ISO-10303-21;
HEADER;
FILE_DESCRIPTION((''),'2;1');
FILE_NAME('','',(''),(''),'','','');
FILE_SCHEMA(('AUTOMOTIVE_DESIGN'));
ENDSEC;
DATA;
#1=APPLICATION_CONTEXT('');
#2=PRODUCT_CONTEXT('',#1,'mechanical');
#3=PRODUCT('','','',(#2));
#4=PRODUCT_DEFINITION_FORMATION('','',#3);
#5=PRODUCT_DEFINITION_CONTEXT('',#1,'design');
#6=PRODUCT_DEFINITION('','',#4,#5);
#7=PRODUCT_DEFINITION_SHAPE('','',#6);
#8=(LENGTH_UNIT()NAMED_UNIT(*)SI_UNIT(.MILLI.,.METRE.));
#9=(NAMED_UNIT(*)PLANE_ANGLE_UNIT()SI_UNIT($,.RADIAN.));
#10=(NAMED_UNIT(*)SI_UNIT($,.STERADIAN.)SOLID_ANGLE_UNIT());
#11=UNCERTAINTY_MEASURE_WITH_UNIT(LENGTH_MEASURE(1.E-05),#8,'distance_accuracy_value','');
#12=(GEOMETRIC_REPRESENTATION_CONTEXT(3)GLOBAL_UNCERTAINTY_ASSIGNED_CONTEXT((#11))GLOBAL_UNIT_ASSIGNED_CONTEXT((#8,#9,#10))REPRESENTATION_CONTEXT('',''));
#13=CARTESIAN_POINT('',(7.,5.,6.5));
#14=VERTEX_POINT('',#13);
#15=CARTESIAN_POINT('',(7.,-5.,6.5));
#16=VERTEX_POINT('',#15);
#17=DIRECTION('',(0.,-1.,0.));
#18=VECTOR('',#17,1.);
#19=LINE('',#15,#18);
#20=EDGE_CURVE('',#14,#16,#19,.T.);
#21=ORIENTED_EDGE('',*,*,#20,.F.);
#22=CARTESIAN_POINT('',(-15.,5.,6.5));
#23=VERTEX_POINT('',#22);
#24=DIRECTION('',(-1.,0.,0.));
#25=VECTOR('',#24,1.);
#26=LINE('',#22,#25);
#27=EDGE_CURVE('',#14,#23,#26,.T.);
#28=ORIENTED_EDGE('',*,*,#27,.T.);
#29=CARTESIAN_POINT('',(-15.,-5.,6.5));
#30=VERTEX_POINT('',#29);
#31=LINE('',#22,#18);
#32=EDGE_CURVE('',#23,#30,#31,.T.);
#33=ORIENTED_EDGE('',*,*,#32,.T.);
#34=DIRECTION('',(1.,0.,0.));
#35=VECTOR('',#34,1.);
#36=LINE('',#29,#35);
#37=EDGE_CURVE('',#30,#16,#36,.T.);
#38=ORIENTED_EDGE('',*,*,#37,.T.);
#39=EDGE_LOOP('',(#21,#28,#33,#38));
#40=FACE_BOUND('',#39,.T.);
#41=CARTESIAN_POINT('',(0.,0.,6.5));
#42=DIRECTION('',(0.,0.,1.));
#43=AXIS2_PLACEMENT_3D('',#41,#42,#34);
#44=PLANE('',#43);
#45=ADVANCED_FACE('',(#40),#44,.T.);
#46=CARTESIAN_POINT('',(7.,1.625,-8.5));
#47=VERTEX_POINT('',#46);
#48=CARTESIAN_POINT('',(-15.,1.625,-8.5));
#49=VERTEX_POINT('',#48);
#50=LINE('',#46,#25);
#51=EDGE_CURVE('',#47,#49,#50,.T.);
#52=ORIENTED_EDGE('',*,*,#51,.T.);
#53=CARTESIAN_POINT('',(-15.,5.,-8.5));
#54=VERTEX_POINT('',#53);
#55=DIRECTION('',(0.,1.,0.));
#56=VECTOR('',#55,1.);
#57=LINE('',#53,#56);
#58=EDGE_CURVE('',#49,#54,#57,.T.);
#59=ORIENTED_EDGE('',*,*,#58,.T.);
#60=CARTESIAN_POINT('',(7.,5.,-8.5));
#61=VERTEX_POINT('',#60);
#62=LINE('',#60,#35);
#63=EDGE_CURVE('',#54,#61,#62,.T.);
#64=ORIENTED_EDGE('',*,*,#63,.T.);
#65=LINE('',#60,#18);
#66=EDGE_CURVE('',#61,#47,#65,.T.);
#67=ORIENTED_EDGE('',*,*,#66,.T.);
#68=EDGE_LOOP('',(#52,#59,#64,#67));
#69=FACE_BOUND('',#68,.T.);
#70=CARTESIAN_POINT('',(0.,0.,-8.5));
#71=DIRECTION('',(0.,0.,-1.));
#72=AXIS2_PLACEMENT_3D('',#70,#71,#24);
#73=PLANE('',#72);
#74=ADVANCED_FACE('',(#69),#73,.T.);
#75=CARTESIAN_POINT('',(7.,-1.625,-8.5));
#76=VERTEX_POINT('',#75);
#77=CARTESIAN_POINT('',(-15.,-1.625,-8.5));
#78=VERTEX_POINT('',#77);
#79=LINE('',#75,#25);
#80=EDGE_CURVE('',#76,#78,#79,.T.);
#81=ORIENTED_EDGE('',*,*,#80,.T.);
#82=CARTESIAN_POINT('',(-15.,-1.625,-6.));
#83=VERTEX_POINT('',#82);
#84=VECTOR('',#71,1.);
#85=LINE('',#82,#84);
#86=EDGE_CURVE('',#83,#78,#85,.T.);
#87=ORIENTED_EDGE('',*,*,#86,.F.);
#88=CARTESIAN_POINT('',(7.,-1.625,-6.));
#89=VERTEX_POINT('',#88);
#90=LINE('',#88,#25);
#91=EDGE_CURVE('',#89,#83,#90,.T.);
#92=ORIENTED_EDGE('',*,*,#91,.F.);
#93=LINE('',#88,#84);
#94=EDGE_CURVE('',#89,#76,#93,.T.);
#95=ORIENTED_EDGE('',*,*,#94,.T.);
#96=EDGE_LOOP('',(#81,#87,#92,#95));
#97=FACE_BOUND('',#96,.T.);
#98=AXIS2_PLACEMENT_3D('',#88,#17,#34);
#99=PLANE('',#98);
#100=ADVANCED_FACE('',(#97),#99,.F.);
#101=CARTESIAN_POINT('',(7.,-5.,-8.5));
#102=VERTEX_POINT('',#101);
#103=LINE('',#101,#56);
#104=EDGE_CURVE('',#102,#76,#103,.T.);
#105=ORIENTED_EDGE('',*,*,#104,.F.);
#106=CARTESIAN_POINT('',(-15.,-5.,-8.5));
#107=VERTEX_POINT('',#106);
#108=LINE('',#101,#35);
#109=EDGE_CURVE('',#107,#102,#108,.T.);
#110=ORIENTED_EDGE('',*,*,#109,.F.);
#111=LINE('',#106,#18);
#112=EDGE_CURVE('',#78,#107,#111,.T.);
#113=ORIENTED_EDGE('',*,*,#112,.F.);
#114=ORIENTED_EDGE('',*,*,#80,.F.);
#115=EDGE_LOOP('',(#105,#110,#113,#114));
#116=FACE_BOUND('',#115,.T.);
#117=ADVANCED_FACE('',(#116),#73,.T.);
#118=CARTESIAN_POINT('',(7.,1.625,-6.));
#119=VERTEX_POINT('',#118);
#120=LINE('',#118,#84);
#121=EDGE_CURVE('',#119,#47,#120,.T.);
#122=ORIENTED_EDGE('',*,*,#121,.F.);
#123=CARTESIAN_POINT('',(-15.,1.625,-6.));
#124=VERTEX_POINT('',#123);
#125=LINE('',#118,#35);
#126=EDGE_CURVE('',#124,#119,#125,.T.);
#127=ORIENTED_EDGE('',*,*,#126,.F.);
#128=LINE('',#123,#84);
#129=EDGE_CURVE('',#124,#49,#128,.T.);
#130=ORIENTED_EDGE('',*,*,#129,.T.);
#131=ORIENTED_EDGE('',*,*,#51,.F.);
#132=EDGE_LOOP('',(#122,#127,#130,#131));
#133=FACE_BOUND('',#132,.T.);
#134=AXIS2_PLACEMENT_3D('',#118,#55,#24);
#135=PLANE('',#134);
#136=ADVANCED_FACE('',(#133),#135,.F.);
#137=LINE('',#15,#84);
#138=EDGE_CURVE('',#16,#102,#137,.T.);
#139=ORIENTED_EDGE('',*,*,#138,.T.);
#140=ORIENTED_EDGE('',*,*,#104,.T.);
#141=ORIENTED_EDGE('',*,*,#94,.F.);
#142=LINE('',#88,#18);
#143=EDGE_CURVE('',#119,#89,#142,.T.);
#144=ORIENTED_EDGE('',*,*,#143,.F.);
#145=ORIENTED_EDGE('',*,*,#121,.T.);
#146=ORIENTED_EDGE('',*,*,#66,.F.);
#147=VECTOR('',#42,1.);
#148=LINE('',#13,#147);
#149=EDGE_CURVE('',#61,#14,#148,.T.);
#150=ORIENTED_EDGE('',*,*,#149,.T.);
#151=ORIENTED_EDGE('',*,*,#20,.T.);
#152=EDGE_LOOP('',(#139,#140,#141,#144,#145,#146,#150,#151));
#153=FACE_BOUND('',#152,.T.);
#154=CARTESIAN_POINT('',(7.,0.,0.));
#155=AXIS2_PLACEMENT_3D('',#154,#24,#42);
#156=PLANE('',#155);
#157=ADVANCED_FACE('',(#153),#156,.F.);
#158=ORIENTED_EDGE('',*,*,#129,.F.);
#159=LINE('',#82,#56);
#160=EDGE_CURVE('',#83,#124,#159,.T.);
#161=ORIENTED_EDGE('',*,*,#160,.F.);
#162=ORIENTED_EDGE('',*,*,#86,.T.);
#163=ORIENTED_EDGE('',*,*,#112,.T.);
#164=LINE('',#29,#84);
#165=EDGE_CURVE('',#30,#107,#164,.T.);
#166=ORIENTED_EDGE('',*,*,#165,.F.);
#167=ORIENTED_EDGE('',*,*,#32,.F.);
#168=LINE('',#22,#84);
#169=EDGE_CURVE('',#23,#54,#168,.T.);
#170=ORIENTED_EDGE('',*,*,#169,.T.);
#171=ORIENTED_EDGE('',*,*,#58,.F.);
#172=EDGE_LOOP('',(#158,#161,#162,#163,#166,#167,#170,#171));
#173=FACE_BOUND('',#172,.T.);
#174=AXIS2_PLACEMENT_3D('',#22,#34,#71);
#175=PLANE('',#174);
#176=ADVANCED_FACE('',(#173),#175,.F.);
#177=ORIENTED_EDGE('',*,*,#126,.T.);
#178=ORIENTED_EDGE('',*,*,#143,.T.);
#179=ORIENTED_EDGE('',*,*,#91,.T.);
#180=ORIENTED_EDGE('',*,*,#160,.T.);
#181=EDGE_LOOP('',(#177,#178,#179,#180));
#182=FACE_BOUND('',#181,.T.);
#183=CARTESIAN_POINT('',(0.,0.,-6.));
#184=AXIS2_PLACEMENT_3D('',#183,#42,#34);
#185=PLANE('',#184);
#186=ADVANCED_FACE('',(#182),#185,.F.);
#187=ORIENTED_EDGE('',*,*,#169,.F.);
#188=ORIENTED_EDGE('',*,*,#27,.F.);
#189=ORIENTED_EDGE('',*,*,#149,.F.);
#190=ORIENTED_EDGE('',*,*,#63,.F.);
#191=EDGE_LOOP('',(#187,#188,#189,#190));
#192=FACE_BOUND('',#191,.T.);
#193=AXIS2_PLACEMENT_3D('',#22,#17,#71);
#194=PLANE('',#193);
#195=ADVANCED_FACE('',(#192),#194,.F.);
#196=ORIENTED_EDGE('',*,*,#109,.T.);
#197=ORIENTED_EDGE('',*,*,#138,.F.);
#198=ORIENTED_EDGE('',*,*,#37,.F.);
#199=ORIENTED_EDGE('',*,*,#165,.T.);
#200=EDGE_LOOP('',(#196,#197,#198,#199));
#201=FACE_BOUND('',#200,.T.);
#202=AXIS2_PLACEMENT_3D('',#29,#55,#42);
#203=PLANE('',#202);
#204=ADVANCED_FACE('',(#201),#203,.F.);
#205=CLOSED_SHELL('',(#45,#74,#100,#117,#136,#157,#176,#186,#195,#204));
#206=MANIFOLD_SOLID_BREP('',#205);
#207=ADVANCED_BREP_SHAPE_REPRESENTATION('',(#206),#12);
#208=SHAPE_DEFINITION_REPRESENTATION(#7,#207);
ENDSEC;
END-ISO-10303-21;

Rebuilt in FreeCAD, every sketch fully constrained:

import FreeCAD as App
import Part
import Sketcher

V = App.Vector
Q = App.Units.Quantity


def add_polygon(sketch, points):
    """Adds a closed chain of lines whose ends are joined by coincident constraints."""
    first, n = sketch.GeometryCount, len(points)
    for a, b in zip(points, points[1:] + points[:1]):
        sketch.addGeometry(Part.LineSegment(App.Vector(*a, 0), App.Vector(*b, 0)), False)
    for i in range(n):
        sketch.addConstraint(Sketcher.Constraint("Coincident", first + i, 2, first + (i + 1) % n, 1))

doc = App.newDocument("Part")
body = doc.addObject("PartDesign::Body", "Body")

sketch1 = body.newObject("Sketcher::SketchObject", "Sketch")
sketch1.AttachmentSupport = (doc.getObject("XY_Plane"), [""])
sketch1.MapMode = "FlatFace"
add_polygon(sketch1, [(-15, 5), (-15, -5), (15, -5), (15, 5)])
sketch1.addConstraint(Sketcher.Constraint("Vertical", 0))
sketch1.addConstraint(Sketcher.Constraint("Horizontal", 1))
sketch1.addConstraint(Sketcher.Constraint("Vertical", 2))
sketch1.addConstraint(Sketcher.Constraint("Horizontal", 3))
sketch1.addConstraint(Sketcher.Constraint("Symmetric", 0, 2, 2, 2, -1, 1))
sketch1.addConstraint(Sketcher.Constraint("DistanceX", 1, 1, 1, 2, Q("30 mm")))
sketch1.addConstraint(Sketcher.Constraint("DistanceY", 0, 2, 0, 1, Q("10 mm")))
pad1 = body.newObject("PartDesign::Pad", "Pad")
pad1.Profile = sketch1
pad1.Length = 13
pad1.Midplane = True

sketch2 = body.newObject("Sketcher::SketchObject", "Sketch001")
sketch2.AttachmentSupport = (doc.getObject("XZ_Plane"), [""])
sketch2.MapMode = "FlatFace"
sketch2.AttachmentOffset = App.Placement(V(0, 0, 5), App.Rotation())
add_polygon(sketch2, [(4, 11), (4, -11), (17, -11), (17, 11)])
sketch2.addConstraint(Sketcher.Constraint("Vertical", 0))
sketch2.addConstraint(Sketcher.Constraint("Horizontal", 1))
sketch2.addConstraint(Sketcher.Constraint("Vertical", 2))
sketch2.addConstraint(Sketcher.Constraint("Horizontal", 3))
sketch2.addConstraint(Sketcher.Constraint("DistanceX", 1, 1, 1, 2, Q("13 mm")))
sketch2.addConstraint(Sketcher.Constraint("DistanceY", 0, 2, 0, 1, Q("22 mm")))
sketch2.addConstraint(Sketcher.Constraint("DistanceX", -1, 1, 0, 2, Q("4 mm")))
sketch2.addConstraint(Sketcher.Constraint("DistanceY", 0, 2, -1, 1, Q("11 mm")))
pocket1 = body.newObject("PartDesign::Pocket", "Pocket")
pocket1.Profile = sketch2
pocket1.Type = "ThroughAll"

sketch3 = body.newObject("Sketcher::SketchObject", "Sketch002")
sketch3.AttachmentSupport = (doc.getObject("YZ_Plane"), [""])
sketch3.MapMode = "FlatFace"
sketch3.AttachmentOffset = App.Placement(V(0, 0, 4), App.Rotation())
add_polygon(sketch3, [(5, 6), (-5, 6), (-5, -6), (5, -6)])
sketch3.addConstraint(Sketcher.Constraint("Horizontal", 0))
sketch3.addConstraint(Sketcher.Constraint("Vertical", 1))
sketch3.addConstraint(Sketcher.Constraint("Horizontal", 2))
sketch3.addConstraint(Sketcher.Constraint("Vertical", 3))
sketch3.addConstraint(Sketcher.Constraint("Symmetric", 0, 2, 2, 2, -1, 1))
sketch3.addConstraint(Sketcher.Constraint("DistanceX", 0, 2, 0, 1, Q("10 mm")))
sketch3.addConstraint(Sketcher.Constraint("DistanceY", 1, 2, 1, 1, Q("13 mm")))
pad2 = body.newObject("PartDesign::Pad", "Pad001")
pad2.Profile = sketch3
pad2.Length = 3

sketch4 = body.newObject("Sketcher::SketchObject", "Sketch003")
sketch4.AttachmentSupport = (doc.getObject("XY_Plane"), [""])
sketch4.MapMode = "FlatFace"
sketch4.AttachmentOffset = App.Placement(V(0, 0, -6.5), App.Rotation())
add_polygon(sketch4, [(7, 1.6), (7, -1.6), (-15, -1.6), (-15, 1.6)])
sketch4.addConstraint(Sketcher.Constraint("Vertical", 0))
sketch4.addConstraint(Sketcher.Constraint("Horizontal", 1))
sketch4.addConstraint(Sketcher.Constraint("Vertical", 2))
sketch4.addConstraint(Sketcher.Constraint("Horizontal", 3))
sketch4.addConstraint(Sketcher.Constraint("DistanceX", 1, 2, 1, 1, Q("22 mm")))
sketch4.addConstraint(Sketcher.Constraint("DistanceX", -1, 1, 0, 2, Q("7 mm")))
sketch4.addConstraint(Sketcher.Constraint("DistanceY", 0, 2, 0, 1, Q("3.25 mm")))
sketch4.addConstraint(Sketcher.Constraint("DistanceY", 0, 2, -1, 1, Q("1.625 mm")))
pocket2 = body.newObject("PartDesign::Pocket", "Pocket001")
pocket2.Profile = sketch4
pocket2.Length = 0.5
pocket2.Reversed = True

sketch5 = body.newObject("Sketcher::SketchObject", "Sketch004")
sketch5.AttachmentSupport = (doc.getObject("XY_Plane"), [""])
sketch5.MapMode = "FlatFace"
sketch5.AttachmentOffset = App.Placement(V(0, 0, -6.5), App.Rotation())
add_polygon(sketch5, [(7, 5), (7, 1.6), (-15, 1.6), (-15, 5)])
sketch5.addConstraint(Sketcher.Constraint("Vertical", 0))
sketch5.addConstraint(Sketcher.Constraint("Horizontal", 1))
sketch5.addConstraint(Sketcher.Constraint("Vertical", 2))
sketch5.addConstraint(Sketcher.Constraint("Horizontal", 3))
sketch5.addConstraint(Sketcher.Constraint("DistanceX", 1, 2, 1, 1, Q("22 mm")))
sketch5.addConstraint(Sketcher.Constraint("DistanceX", -1, 1, 0, 2, Q("7 mm")))
sketch5.addConstraint(Sketcher.Constraint("DistanceY", -1, 1, 2, 2, Q("5 mm")))
sketch5.addConstraint(Sketcher.Constraint("DistanceY", 0, 2, 0, 1, Q("3.375 mm")))
pad3 = body.newObject("PartDesign::Pad", "Pad002")
pad3.Profile = sketch5
pad3.Length = 2
pad3.Reversed = True
doc.recompute()

mirrored = body.newObject("PartDesign::Mirrored", "Mirrored")
mirrored.Originals = [pad3]
mirrored.MirrorPlane = (doc.getObject("XZ_Plane"), [""])
body.Tip = mirrored

doc.recompute()
